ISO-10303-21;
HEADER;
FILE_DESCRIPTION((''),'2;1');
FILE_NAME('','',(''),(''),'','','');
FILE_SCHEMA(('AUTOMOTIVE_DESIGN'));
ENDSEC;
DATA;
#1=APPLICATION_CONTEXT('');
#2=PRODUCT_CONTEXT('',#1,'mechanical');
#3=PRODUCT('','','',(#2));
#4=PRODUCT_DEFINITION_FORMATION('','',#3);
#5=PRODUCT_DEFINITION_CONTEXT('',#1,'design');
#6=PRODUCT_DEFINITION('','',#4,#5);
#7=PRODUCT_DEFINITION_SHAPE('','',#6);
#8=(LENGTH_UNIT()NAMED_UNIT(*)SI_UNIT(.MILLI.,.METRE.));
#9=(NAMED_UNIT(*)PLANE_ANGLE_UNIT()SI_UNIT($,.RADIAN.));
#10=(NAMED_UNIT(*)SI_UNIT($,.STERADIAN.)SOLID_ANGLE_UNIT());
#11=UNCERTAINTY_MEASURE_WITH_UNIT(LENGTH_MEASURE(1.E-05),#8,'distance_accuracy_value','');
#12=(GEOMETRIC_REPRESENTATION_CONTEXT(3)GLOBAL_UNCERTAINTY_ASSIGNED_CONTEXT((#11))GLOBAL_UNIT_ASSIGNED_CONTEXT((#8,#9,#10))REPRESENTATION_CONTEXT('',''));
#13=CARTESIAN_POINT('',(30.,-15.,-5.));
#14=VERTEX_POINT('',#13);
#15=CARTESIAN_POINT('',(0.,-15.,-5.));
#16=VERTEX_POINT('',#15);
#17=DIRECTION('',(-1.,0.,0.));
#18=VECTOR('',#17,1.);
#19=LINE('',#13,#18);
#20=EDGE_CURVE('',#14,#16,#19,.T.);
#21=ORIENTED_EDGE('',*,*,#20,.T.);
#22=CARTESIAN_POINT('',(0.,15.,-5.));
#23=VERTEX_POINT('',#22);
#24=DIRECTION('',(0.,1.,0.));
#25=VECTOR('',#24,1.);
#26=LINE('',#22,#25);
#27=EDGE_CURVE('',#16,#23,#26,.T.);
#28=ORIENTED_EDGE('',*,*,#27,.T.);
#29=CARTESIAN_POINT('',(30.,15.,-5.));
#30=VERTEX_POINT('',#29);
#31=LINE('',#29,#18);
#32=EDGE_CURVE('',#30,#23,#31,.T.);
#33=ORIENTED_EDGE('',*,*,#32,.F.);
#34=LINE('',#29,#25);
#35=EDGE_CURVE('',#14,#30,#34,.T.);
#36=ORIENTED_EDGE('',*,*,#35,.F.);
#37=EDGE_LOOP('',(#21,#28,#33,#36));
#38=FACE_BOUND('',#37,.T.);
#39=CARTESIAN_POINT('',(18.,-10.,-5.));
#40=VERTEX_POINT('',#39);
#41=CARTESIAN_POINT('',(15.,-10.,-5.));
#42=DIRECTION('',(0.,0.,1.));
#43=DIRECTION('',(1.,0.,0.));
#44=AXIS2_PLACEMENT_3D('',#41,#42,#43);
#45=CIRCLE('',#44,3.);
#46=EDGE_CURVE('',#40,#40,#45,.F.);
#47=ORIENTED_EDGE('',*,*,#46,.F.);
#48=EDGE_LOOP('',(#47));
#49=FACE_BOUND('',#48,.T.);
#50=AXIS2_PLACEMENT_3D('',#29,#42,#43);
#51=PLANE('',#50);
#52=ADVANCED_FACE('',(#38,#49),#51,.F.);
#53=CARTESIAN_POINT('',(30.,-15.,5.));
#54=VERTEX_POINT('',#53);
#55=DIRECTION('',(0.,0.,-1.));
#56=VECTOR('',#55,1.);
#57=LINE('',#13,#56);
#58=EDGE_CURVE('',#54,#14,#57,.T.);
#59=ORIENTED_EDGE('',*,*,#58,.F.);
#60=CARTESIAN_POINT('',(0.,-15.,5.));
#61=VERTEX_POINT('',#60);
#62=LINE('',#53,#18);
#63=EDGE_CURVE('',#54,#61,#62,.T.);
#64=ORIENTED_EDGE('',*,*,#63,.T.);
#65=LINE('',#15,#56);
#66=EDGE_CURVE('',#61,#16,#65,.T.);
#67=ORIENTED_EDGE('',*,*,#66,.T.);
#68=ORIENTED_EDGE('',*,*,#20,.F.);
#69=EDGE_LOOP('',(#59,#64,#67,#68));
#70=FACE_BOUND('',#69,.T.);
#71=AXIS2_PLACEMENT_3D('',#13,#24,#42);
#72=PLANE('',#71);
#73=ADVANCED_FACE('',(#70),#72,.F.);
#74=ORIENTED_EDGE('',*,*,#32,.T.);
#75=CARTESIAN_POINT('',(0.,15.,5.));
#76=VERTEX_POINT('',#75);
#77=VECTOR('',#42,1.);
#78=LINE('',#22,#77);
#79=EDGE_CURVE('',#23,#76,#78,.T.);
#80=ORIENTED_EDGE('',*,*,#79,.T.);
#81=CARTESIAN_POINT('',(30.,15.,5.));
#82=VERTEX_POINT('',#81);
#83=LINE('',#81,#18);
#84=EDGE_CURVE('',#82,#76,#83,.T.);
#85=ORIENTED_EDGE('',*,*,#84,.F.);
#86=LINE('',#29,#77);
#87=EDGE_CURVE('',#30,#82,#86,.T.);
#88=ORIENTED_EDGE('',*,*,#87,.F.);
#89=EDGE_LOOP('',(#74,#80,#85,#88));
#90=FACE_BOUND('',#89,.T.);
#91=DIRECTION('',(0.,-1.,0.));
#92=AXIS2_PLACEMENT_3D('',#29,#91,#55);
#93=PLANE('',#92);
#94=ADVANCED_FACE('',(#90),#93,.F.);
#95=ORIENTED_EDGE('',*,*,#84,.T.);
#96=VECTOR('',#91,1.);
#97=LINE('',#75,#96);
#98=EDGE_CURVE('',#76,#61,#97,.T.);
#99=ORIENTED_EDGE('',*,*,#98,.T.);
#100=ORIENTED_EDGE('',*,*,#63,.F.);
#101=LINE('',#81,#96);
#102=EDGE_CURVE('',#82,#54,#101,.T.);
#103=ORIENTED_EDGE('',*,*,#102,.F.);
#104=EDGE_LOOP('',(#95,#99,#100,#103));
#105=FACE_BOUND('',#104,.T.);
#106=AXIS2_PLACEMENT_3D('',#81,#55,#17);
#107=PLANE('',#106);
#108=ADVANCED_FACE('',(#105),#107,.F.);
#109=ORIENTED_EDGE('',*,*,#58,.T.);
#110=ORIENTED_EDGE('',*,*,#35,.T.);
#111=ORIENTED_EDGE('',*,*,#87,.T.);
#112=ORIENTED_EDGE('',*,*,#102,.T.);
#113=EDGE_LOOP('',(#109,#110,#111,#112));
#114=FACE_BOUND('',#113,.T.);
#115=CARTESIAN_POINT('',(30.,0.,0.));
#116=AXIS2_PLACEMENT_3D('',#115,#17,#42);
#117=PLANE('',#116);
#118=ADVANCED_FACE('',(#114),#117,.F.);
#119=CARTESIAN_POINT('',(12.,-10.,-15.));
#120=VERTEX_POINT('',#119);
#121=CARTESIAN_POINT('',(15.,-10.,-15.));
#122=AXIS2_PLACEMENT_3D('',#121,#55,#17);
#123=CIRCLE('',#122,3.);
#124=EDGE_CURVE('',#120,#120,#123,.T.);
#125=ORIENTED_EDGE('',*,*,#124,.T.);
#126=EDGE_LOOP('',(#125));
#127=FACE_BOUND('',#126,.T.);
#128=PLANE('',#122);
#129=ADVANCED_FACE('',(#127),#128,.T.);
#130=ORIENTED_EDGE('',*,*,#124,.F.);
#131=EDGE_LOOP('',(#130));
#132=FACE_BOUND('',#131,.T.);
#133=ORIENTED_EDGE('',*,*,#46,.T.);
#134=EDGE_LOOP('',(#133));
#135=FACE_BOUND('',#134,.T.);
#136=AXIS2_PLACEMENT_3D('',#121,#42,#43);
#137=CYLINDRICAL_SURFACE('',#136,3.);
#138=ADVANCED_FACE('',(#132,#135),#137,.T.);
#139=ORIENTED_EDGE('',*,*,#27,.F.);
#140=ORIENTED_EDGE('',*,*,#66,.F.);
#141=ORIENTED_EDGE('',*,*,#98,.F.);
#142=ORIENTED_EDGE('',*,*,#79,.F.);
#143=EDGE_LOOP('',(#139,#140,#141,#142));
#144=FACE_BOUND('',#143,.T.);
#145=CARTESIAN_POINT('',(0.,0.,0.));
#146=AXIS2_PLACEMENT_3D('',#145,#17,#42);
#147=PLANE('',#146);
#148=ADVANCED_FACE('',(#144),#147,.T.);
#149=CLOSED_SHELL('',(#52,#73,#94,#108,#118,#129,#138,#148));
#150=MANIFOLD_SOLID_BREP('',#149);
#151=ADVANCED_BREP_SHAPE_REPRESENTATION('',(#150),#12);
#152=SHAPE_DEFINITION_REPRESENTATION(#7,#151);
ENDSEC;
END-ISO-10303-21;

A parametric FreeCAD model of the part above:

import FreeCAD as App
import Part
import Sketcher
Q = App.Units.Quantity

doc = App.newDocument("Part")
body = doc.addObject("PartDesign::Body", "Body")

# Sketch on YZ plane
sketch1 = doc.addObject("Sketcher::SketchObject", "Sketch")
body.addObject(sketch1)
sketch1.AttachmentSupport = (doc.YZ_Plane, [""])
sketch1.MapMode = "FlatFace"
sketch1.addGeometry(Part.LineSegment(App.Vector(15, 5, 0), App.Vector(-15, 5, 0)), False)
sketch1.addGeometry(Part.LineSegment(App.Vector(-15, 5, 0), App.Vector(-15, -5, 0)), False)
sketch1.addGeometry(Part.LineSegment(App.Vector(-15, -5, 0), App.Vector(15, -5, 0)), False)
sketch1.addGeometry(Part.LineSegment(App.Vector(15, -5, 0), App.Vector(15, 5, 0)), False)
sketch1.addConstraint(Sketcher.Constraint("Coincident", 0, 2, 1, 1))
sketch1.addConstraint(Sketcher.Constraint("Coincident", 1, 2, 2, 1))
sketch1.addConstraint(Sketcher.Constraint("Coincident", 2, 2, 3, 1))
sketch1.addConstraint(Sketcher.Constraint("Coincident", 3, 2, 0, 1))
sketch1.addConstraint(Sketcher.Constraint("Horizontal", 0))
sketch1.addConstraint(Sketcher.Constraint("Vertical", 1))
sketch1.addConstraint(Sketcher.Constraint("Horizontal", 2))
sketch1.addConstraint(Sketcher.Constraint("Vertical", 3))
sketch1.addConstraint(Sketcher.Constraint("Symmetric", 0, 2, 2, 2, -1, 1))
sketch1.addConstraint(Sketcher.Constraint("DistanceX", 0, 2, 0, 1, Q("30 mm")))
sketch1.addConstraint(Sketcher.Constraint("DistanceY", 1, 2, 1, 1, Q("10 mm")))
pad1 = doc.addObject("PartDesign::Pad", "Pad")
body.addObject(pad1)
pad1.Profile = sketch1
pad1.Length = 30

# Sketch on XY plane
sketch2 = doc.addObject("Sketcher::SketchObject", "Sketch001")
body.addObject(sketch2)
sketch2.AttachmentSupport = (doc.XY_Plane, [""])
sketch2.MapMode = "FlatFace"
sketch2.AttachmentOffset = App.Placement(App.Vector(0, 0, -5), App.Rotation())
sketch2.addGeometry(Part.Circle(App.Vector(15, -10, 0), App.Vector(0, 0, 1), 3), False)
sketch2.addConstraint(Sketcher.Constraint("Diameter", 0, Q("6 mm")))
sketch2.addConstraint(Sketcher.Constraint("DistanceX", -1, 1, 0, 3, Q("15 mm")))
sketch2.addConstraint(Sketcher.Constraint("DistanceY", 0, 3, -1, 1, Q("10 mm")))
pad2 = doc.addObject("PartDesign::Pad", "Pad001")
body.addObject(pad2)
pad2.Profile = sketch2
pad2.Length = 10
pad2.Reversed = True

doc.recompute()
